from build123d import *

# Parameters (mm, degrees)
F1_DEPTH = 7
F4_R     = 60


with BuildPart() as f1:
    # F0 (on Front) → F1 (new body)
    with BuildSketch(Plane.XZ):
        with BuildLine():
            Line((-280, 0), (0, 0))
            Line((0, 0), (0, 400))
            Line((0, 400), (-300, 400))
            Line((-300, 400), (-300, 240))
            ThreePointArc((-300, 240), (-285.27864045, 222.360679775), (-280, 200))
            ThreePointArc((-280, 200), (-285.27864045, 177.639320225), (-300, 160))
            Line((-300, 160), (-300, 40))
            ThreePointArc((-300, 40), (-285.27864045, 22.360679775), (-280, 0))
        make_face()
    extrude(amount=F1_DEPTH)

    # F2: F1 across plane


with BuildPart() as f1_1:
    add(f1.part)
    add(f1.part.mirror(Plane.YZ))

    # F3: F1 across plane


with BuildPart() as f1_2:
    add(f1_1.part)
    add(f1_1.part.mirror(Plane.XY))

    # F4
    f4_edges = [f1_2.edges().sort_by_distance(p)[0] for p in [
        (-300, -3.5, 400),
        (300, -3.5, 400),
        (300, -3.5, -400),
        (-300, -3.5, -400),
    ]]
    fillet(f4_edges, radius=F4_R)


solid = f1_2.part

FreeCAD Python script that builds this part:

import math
import FreeCAD as App
import Part
import Sketcher
from FreeCAD import Vector
Q = App.Units.Quantity


def edges_at(feature, points):
    """Names of the edges that pass closest to the given points."""
    edges = feature.Shape.Edges
    near = lambda p: min(range(len(edges)), key=lambda i: edges[i].distToShape(Part.Vertex(*p))[0])
    return sorted({f"Edge{near(p) + 1}" for p in points})

doc = App.newDocument("Part")
body = doc.addObject("PartDesign::Body", "Body")

# Sketch on XZ plane
sketch1 = body.newObject("Sketcher::SketchObject", "Sketch")
sketch1.AttachmentSupport = (doc.getObject("XZ_Plane"), [""])
sketch1.MapMode = "FlatFace"
sketch1.addGeometry(Part.LineSegment(Vector(-280, 0, 0), Vector(0, 0, 0)), False)
sketch1.addGeometry(Part.LineSegment(Vector(0, 0, 0), Vector(0, 400, 0)), False)
sketch1.addGeometry(Part.LineSegment(Vector(0, 400, 0), Vector(-300, 400, 0)), False)
sketch1.addGeometry(Part.LineSegment(Vector(-300, 400, 0), Vector(-300, 240, 0)), False)
sketch1.addGeometry(Part.ArcOfCircle(Part.Circle(Vector(-330, 200, 0), Vector(0, 0, 1), 50), math.radians(-53), math.radians(53)), False)
sketch1.addGeometry(Part.LineSegment(Vector(-300, 160, 0), Vector(-300, 40, 0)), False)
sketch1.addGeometry(Part.ArcOfCircle(Part.Circle(Vector(-330, 0, 0), Vector(0, 0, 1), 50), math.radians(0), math.radians(53)), False)
sketch1.addConstraint(Sketcher.Constraint("Coincident", 0, 2, 1, 1))
sketch1.addConstraint(Sketcher.Constraint("Coincident", 1, 2, 2, 1))
sketch1.addConstraint(Sketcher.Constraint("Coincident", 2, 2, 3, 1))
sketch1.addConstraint(Sketcher.Constraint("Coincident", 3, 2, 4, 2))
sketch1.addConstraint(Sketcher.Constraint("Coincident", 4, 1, 5, 1))
sketch1.addConstraint(Sketcher.Constraint("Coincident", 5, 2, 6, 2))
sketch1.addConstraint(Sketcher.Constraint("Coincident", 6, 1, 0, 1))
sketch1.addConstraint(Sketcher.Constraint("Horizontal", 0))
sketch1.addConstraint(Sketcher.Constraint("Vertical", 1))
sketch1.addConstraint(Sketcher.Constraint("Horizontal", 2))
sketch1.addConstraint(Sketcher.Constraint("Vertical", 3))
sketch1.addConstraint(Sketcher.Constraint("Vertical", 5))
sketch1.addConstraint(Sketcher.Constraint("Coincident", 0, 2, -1, 1))
sketch1.addConstraint(Sketcher.Constraint("Equal", 4, 6))
sketch1.addConstraint(Sketcher.Constraint("PointOnObject", 6, 3, -1))
sketch1.addConstraint(Sketcher.Constraint("Vertical", 4, 3, 6, 3))
sketch1.addConstraint(Sketcher.Constraint("Vertical", 3, 2, 4, 1))
sketch1.addConstraint(Sketcher.Constraint("Radius", 4, Q("50 mm")))
sketch1.addConstraint(Sketcher.Constraint("DistanceX", 0, 1, 0, 2, Q("280 mm")))
sketch1.addConstraint(Sketcher.Constraint("DistanceX", 2, 2, 2, 1, Q("300 mm")))
sketch1.addConstraint(Sketcher.Constraint("DistanceY", 1, 1, 1, 2, Q("400 mm")))
sketch1.addConstraint(Sketcher.Constraint("DistanceY", 3, 2, 3, 1, Q("160 mm")))
pad1 = body.newObject("PartDesign::Pad", "Pad")
pad1.Profile = sketch1
pad1.Length = 7
body2 = doc.addObject("PartDesign::Body", "Body001")
doc.recompute()

body2.BaseFeature = body
doc.recompute()

mirroring = doc.addObject("Part::Mirroring", "Mirroring")
mirroring.Source = body
mirroring.Base = Vector(0, 0, 0)
mirroring.Normal = Vector(1, 0, 0)
body3 = doc.addObject("PartDesign::Body", "Body002")
body3.BaseFeature = mirroring
boolean = body2.newObject("PartDesign::Boolean", "Boolean")
boolean.Type = "Fuse"
boolean.addObjects([body3])
doc.recompute()
body4 = doc.addObject("PartDesign::Body", "Body003")
doc.recompute()

body4.BaseFeature = body2
doc.recompute()

mirroring2 = doc.addObject("Part::Mirroring", "Mirroring001")
mirroring2.Source = body2
mirroring2.Base = Vector(0, 0, 0)
mirroring2.Normal = Vector(0, 0, 1)
body5 = doc.addObject("PartDesign::Body", "Body004")
body5.BaseFeature = mirroring2
boolean2 = body4.newObject("PartDesign::Boolean", "Boolean001")
boolean2.Type = "Fuse"
boolean2.addObjects([body5])
doc.recompute()

fillet = body4.newObject("PartDesign::Fillet", "Fillet")
fillet.Base = (boolean2, edges_at(boolean2, [
    (-300, -3.5, 400),
    (300, -3.5, 400),
    (300, -3.5, -400),
    (-300, -3.5, -400),
]))
fillet.Radius = 60
mirroring.Visibility = False
mirroring2.Visibility = False

doc.recompute()
